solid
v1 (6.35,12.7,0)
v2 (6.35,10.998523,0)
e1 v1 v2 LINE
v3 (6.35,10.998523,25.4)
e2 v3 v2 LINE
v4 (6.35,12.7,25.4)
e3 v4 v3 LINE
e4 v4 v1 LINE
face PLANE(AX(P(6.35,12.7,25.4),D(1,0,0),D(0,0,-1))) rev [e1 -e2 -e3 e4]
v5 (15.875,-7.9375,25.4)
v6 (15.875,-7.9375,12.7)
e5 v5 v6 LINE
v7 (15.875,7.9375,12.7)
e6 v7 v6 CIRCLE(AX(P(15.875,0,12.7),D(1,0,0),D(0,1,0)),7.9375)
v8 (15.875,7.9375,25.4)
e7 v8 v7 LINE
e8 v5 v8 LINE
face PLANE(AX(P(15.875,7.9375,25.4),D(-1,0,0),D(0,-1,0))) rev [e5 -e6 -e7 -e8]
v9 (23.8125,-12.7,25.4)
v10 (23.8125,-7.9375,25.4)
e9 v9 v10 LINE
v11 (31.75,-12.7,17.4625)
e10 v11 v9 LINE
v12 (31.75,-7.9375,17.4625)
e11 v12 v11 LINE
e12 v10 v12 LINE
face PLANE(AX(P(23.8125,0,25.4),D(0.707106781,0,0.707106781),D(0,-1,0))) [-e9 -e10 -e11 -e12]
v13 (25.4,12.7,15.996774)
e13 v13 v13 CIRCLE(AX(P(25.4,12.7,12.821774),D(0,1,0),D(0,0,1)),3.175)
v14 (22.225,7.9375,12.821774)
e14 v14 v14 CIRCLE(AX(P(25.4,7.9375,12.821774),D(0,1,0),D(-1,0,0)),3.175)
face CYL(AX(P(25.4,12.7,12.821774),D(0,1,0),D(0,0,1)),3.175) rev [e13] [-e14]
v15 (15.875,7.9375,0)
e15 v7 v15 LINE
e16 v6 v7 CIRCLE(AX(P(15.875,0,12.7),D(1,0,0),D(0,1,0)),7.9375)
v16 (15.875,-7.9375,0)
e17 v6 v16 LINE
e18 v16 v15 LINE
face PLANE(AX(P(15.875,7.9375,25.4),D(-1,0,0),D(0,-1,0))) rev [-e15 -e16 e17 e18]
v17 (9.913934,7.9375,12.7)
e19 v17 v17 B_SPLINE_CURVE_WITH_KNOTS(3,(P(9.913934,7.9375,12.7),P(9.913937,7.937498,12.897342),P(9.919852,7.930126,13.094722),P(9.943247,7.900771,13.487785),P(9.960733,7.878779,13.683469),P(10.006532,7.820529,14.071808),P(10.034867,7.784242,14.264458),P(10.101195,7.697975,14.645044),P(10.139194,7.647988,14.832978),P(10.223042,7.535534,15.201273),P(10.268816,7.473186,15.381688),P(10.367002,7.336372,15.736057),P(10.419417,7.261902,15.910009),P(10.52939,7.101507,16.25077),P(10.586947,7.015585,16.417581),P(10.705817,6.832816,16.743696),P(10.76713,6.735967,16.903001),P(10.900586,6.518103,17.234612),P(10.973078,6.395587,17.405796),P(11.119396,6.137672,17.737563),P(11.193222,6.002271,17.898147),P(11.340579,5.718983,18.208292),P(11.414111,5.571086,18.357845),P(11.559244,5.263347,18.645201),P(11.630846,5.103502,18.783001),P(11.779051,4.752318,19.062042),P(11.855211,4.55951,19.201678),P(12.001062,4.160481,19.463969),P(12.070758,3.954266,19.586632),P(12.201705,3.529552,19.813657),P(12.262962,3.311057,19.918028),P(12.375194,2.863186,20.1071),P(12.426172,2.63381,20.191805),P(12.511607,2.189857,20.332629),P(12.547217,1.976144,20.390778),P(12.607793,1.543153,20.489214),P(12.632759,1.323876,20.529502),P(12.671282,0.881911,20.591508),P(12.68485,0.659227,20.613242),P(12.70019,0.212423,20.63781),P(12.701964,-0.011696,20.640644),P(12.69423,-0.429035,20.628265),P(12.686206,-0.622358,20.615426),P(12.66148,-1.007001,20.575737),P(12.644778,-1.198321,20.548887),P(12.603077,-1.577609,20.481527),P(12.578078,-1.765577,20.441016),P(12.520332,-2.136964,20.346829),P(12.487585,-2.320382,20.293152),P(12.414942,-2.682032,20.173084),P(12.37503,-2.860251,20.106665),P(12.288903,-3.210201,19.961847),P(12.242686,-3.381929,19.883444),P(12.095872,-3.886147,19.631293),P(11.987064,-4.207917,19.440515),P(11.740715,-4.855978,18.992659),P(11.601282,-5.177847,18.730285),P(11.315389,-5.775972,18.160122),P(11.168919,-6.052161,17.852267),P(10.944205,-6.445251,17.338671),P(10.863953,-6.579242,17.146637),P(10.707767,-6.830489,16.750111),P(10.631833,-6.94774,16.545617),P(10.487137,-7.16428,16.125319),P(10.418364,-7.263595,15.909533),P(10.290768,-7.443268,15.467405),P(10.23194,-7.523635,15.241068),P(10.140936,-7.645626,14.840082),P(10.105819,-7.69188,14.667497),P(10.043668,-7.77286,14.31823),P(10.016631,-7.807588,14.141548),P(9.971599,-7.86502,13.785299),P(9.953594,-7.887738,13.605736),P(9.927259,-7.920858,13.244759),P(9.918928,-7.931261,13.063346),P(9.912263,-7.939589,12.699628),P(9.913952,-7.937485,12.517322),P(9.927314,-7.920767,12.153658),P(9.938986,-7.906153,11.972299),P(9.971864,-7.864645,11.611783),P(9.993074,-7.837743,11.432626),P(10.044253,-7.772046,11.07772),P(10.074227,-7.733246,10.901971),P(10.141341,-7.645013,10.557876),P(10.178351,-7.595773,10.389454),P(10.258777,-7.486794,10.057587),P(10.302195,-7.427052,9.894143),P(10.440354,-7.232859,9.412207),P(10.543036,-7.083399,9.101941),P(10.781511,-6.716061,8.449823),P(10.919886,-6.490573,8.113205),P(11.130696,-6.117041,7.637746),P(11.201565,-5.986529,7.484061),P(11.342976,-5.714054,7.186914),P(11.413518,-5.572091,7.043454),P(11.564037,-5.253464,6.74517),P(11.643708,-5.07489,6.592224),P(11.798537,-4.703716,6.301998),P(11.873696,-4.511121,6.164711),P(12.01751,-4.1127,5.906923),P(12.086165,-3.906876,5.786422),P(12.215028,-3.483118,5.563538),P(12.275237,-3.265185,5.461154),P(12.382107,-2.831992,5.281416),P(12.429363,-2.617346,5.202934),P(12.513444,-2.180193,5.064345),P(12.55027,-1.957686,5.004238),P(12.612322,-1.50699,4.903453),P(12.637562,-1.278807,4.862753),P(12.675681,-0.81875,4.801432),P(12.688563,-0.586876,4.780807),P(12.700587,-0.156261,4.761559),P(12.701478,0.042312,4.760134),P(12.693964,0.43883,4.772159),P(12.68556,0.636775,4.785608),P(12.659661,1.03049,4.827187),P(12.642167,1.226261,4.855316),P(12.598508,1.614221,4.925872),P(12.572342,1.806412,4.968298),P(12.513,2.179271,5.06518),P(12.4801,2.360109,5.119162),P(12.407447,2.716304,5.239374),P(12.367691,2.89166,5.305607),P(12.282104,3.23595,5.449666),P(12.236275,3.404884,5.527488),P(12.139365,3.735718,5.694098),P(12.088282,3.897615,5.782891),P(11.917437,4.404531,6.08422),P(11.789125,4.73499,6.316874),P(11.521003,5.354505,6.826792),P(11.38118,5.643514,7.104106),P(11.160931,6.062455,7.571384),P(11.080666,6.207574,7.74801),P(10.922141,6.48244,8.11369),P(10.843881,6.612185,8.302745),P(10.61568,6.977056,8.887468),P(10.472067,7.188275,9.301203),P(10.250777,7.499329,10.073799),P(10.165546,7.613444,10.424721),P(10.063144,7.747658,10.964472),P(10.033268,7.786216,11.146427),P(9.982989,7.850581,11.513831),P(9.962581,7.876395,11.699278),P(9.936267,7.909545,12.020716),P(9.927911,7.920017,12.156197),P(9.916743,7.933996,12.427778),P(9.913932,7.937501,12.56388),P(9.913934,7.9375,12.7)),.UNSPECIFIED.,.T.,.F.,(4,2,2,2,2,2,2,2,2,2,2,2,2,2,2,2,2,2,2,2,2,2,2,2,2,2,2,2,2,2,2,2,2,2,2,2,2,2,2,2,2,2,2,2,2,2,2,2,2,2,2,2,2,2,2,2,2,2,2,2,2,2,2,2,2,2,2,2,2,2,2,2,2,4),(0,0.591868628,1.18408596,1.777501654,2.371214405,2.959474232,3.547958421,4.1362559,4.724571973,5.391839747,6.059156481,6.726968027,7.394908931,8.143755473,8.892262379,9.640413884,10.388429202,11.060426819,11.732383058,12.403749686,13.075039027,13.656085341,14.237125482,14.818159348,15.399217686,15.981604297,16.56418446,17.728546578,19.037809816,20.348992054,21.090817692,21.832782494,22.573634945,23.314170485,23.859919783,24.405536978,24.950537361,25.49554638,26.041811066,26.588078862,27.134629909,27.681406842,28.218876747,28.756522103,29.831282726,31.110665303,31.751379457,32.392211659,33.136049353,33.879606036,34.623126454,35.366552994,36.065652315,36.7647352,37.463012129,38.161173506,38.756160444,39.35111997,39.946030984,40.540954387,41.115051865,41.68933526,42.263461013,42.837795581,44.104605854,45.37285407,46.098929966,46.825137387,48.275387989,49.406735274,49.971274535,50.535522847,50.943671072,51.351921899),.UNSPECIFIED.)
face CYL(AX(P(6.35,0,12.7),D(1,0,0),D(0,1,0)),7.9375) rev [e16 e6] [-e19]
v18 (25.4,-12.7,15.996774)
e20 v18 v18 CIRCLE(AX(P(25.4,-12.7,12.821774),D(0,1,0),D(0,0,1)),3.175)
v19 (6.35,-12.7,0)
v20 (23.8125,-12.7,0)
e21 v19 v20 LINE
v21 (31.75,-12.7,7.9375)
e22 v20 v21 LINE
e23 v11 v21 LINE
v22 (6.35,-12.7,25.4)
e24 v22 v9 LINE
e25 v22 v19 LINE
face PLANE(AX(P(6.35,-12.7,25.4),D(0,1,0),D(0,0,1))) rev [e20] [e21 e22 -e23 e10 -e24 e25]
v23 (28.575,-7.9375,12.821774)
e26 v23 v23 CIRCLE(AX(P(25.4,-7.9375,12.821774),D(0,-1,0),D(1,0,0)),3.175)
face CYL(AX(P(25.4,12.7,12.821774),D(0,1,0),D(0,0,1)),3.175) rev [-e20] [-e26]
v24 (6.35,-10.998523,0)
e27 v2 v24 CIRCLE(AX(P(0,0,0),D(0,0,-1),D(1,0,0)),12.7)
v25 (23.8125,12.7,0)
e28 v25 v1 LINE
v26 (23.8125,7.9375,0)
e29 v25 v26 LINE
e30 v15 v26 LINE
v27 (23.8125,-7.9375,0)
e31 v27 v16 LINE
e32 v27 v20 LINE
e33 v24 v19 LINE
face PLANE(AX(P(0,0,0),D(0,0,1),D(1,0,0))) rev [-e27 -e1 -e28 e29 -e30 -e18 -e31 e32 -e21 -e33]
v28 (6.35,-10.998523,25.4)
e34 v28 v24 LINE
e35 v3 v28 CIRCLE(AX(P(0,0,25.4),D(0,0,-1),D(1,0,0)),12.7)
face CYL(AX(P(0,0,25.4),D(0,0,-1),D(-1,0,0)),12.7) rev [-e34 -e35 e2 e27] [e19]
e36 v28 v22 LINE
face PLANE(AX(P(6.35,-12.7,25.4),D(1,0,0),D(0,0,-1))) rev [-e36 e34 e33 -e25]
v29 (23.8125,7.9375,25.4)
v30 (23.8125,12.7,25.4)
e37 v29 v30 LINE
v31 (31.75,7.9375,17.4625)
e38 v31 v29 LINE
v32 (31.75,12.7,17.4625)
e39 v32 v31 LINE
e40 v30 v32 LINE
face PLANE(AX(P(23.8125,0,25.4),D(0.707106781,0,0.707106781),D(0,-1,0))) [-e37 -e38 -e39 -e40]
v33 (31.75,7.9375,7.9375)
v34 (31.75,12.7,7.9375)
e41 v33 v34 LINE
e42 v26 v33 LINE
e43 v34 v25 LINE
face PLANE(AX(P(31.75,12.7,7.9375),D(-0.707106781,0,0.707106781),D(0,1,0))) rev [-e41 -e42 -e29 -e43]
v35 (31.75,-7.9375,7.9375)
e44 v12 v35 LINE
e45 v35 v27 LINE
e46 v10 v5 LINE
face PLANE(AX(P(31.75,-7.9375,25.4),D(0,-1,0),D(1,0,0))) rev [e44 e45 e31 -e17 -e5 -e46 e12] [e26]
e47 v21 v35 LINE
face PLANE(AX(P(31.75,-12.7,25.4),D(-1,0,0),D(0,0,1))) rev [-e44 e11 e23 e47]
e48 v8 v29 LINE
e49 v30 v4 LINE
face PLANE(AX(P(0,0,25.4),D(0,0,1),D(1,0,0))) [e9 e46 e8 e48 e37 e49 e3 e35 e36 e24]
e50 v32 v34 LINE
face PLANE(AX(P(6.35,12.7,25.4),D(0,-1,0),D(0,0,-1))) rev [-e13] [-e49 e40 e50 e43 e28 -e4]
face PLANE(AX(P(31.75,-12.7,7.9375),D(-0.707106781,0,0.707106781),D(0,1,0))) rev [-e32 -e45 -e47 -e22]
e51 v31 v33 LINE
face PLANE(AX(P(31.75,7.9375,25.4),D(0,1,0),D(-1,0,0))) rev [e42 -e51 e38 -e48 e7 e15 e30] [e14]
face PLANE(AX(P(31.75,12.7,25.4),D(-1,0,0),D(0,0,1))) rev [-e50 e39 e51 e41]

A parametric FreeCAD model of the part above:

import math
import FreeCAD as App
import Part
import Sketcher
Q = App.Units.Quantity


def edges_at(feature, points):
    """Names of the edges that pass closest to the given points."""
    edges = feature.Shape.Edges
    near = lambda p: min(range(len(edges)), key=lambda i: edges[i].distToShape(Part.Vertex(*p))[0])
    return sorted({f"Edge{near(p) + 1}" for p in points})

doc = App.newDocument("Part")
body = doc.addObject("PartDesign::Body", "Body")

# Sketch on XY plane
sketch1 = body.newObject("Sketcher::SketchObject", "Sketch")
sketch1.AttachmentSupport = (doc.getObject("XY_Plane"), [""])
sketch1.MapMode = "FlatFace"
sketch1.addGeometry(Part.LineSegment(App.Vector(31.8, 12.7, 0), App.Vector(6.3, 12.7, 0)), False)
sketch1.addGeometry(Part.LineSegment(App.Vector(6.3, 12.7, 0), App.Vector(6.3, 11, 0)), False)
sketch1.addGeometry(Part.ArcOfCircle(Part.Circle(App.Vector(0, 0, 0), App.Vector(0, 0, 1), 12.7), math.radians(-60), math.radians(60)), False)
sketch1.addGeometry(Part.LineSegment(App.Vector(6.3, -11, 0), App.Vector(6.3, -12.7, 0)), False)
sketch1.addGeometry(Part.LineSegment(App.Vector(6.3, -12.7, 0), App.Vector(31.8, -12.7, 0)), False)
sketch1.addGeometry(Part.LineSegment(App.Vector(31.8, -12.7, 0), App.Vector(31.8, -7.9, 0)), False)
sketch1.addGeometry(Part.LineSegment(App.Vector(31.8, -7.9, 0), App.Vector(15.9, -7.9, 0)), False)
sketch1.addGeometry(Part.LineSegment(App.Vector(15.9, -7.9, 0), App.Vector(15.9, 7.9, 0)), False)
sketch1.addGeometry(Part.LineSegment(App.Vector(15.9, 7.9, 0), App.Vector(31.8, 7.9, 0)), False)
sketch1.addGeometry(Part.LineSegment(App.Vector(31.8, 7.9, 0), App.Vector(31.8, 12.7, 0)), False)
sketch1.addConstraint(Sketcher.Constraint("Coincident", 0, 2, 1, 1))
sketch1.addConstraint(Sketcher.Constraint("Coincident", 1, 2, 2, 2))
sketch1.addConstraint(Sketcher.Constraint("Coincident", 2, 1, 3, 1))
sketch1.addConstraint(Sketcher.Constraint("Coincident", 3, 2, 4, 1))
sketch1.addConstraint(Sketcher.Constraint("Coincident", 4, 2, 5, 1))
sketch1.addConstraint(Sketcher.Constraint("Coincident", 5, 2, 6, 1))
sketch1.addConstraint(Sketcher.Constraint("Coincident", 6, 2, 7, 1))
sketch1.addConstraint(Sketcher.Constraint("Coincident", 7, 2, 8, 1))
sketch1.addConstraint(Sketcher.Constraint("Coincident", 8, 2, 9, 1))
sketch1.addConstraint(Sketcher.Constraint("Coincident", 9, 2, 0, 1))
sketch1.addConstraint(Sketcher.Constraint("Horizontal", 0))
sketch1.addConstraint(Sketcher.Constraint("Vertical", 1))
sketch1.addConstraint(Sketcher.Constraint("Vertical", 3))
sketch1.addConstraint(Sketcher.Constraint("Horizontal", 4))
sketch1.addConstraint(Sketcher.Constraint("Vertical", 5))
sketch1.addConstraint(Sketcher.Constraint("Horizontal", 6))
sketch1.addConstraint(Sketcher.Constraint("Vertical", 7))
sketch1.addConstraint(Sketcher.Constraint("Horizontal", 8))
sketch1.addConstraint(Sketcher.Constraint("Vertical", 9))
sketch1.addConstraint(Sketcher.Constraint("Coincident", 2, 3, -1, 1))
sketch1.addConstraint(Sketcher.Constraint("Symmetric", 0, 2, 3, 2, -1))
sketch1.addConstraint(Sketcher.Constraint("Symmetric", 5, 2, 8, 2, -1))
sketch1.addConstraint(Sketcher.Constraint("Equal", 8, 7))
sketch1.addConstraint(Sketcher.Constraint("Radius", 2, Q("0.5 in")))
sketch1.addConstraint(Sketcher.Constraint("DistanceX", 0, 2, 0, 1, Q("1 in")))
sketch1.addConstraint(Sketcher.Constraint("DistanceY", 3, 2, 0, 2, Q("1 in")))
sketch1.addConstraint(Sketcher.Constraint("DistanceX", 6, 2, 6, 1, Q("0.625 in")))
sketch1.addConstraint(Sketcher.Constraint("DistanceX", -1, 1, 0, 2, Q("0.25 in")))
pad1 = body.newObject("PartDesign::Pad", "Pad")
pad1.Profile = sketch1
pad1.Length = Q("1 in")

# Sketch on XZ plane
sketch2 = body.newObject("Sketcher::SketchObject", "Sketch001")
sketch2.AttachmentSupport = (doc.getObject("XZ_Plane"), [""])
sketch2.MapMode = "FlatFace"
sketch2.AttachmentOffset = App.Placement(App.Vector(0, 0, -0.5 * 25.4), App.Rotation())
sketch2.addGeometry(Part.Circle(App.Vector(25.4, 12.8, 0), App.Vector(0, 0, 1), 3.2), False)
sketch2.addConstraint(Sketcher.Constraint("Diameter", 0, Q("0.25 in")))
sketch2.addConstraint(Sketcher.Constraint("DistanceX", -1, 1, 0, 3, Q("1 in")))
sketch2.addConstraint(Sketcher.Constraint("DistanceY", -1, 1, 0, 3, Q("12.821774 mm")))
doc.recompute()
hole = body.newObject("PartDesign::Hole", "Hole")
hole.Profile = sketch2
hole.ThreadType = "None"
hole.Diameter = Q("0.25 in")
hole.DepthType = "ThroughAll"
hole.Reversed = True
doc.recompute()

chamfer = body.newObject("PartDesign::Chamfer", "Chamfer")
chamfer.Base = (hole, edges_at(hole, [
    (31.75, 10.319, 0),
    (31.75, 10.319, 25.4),
    (31.75, -10.319, 25.4),
    (31.75, -10.319, 0),
]))
chamfer.Size = Q("0.3125 in")

# Sketch on YZ plane
sketch3 = body.newObject("Sketcher::SketchObject", "Sketch002")
sketch3.AttachmentSupport = (doc.getObject("YZ_Plane"), [""])
sketch3.MapMode = "FlatFace"
sketch3.AttachmentOffset = App.Placement(App.Vector(0, 0, 0.625 * 25.4), App.Rotation())
sketch3.addGeometry(Part.Circle(App.Vector(0, 13, 0), App.Vector(0, 0, 1), 8), False)
sketch3.addConstraint(Sketcher.Constraint("PointOnObject", 0, 3, -2))
sketch3.addConstraint(Sketcher.Constraint("Diameter", 0, Q("0.625 in")))
sketch3.addConstraint(Sketcher.Constraint("DistanceY", -1, 1, 0, 3, Q("0.5 in")))
pocket1 = body.newObject("PartDesign::Pocket", "Pocket")
pocket1.Profile = sketch3
pocket1.Type = "ThroughAll"

doc.recompute()
